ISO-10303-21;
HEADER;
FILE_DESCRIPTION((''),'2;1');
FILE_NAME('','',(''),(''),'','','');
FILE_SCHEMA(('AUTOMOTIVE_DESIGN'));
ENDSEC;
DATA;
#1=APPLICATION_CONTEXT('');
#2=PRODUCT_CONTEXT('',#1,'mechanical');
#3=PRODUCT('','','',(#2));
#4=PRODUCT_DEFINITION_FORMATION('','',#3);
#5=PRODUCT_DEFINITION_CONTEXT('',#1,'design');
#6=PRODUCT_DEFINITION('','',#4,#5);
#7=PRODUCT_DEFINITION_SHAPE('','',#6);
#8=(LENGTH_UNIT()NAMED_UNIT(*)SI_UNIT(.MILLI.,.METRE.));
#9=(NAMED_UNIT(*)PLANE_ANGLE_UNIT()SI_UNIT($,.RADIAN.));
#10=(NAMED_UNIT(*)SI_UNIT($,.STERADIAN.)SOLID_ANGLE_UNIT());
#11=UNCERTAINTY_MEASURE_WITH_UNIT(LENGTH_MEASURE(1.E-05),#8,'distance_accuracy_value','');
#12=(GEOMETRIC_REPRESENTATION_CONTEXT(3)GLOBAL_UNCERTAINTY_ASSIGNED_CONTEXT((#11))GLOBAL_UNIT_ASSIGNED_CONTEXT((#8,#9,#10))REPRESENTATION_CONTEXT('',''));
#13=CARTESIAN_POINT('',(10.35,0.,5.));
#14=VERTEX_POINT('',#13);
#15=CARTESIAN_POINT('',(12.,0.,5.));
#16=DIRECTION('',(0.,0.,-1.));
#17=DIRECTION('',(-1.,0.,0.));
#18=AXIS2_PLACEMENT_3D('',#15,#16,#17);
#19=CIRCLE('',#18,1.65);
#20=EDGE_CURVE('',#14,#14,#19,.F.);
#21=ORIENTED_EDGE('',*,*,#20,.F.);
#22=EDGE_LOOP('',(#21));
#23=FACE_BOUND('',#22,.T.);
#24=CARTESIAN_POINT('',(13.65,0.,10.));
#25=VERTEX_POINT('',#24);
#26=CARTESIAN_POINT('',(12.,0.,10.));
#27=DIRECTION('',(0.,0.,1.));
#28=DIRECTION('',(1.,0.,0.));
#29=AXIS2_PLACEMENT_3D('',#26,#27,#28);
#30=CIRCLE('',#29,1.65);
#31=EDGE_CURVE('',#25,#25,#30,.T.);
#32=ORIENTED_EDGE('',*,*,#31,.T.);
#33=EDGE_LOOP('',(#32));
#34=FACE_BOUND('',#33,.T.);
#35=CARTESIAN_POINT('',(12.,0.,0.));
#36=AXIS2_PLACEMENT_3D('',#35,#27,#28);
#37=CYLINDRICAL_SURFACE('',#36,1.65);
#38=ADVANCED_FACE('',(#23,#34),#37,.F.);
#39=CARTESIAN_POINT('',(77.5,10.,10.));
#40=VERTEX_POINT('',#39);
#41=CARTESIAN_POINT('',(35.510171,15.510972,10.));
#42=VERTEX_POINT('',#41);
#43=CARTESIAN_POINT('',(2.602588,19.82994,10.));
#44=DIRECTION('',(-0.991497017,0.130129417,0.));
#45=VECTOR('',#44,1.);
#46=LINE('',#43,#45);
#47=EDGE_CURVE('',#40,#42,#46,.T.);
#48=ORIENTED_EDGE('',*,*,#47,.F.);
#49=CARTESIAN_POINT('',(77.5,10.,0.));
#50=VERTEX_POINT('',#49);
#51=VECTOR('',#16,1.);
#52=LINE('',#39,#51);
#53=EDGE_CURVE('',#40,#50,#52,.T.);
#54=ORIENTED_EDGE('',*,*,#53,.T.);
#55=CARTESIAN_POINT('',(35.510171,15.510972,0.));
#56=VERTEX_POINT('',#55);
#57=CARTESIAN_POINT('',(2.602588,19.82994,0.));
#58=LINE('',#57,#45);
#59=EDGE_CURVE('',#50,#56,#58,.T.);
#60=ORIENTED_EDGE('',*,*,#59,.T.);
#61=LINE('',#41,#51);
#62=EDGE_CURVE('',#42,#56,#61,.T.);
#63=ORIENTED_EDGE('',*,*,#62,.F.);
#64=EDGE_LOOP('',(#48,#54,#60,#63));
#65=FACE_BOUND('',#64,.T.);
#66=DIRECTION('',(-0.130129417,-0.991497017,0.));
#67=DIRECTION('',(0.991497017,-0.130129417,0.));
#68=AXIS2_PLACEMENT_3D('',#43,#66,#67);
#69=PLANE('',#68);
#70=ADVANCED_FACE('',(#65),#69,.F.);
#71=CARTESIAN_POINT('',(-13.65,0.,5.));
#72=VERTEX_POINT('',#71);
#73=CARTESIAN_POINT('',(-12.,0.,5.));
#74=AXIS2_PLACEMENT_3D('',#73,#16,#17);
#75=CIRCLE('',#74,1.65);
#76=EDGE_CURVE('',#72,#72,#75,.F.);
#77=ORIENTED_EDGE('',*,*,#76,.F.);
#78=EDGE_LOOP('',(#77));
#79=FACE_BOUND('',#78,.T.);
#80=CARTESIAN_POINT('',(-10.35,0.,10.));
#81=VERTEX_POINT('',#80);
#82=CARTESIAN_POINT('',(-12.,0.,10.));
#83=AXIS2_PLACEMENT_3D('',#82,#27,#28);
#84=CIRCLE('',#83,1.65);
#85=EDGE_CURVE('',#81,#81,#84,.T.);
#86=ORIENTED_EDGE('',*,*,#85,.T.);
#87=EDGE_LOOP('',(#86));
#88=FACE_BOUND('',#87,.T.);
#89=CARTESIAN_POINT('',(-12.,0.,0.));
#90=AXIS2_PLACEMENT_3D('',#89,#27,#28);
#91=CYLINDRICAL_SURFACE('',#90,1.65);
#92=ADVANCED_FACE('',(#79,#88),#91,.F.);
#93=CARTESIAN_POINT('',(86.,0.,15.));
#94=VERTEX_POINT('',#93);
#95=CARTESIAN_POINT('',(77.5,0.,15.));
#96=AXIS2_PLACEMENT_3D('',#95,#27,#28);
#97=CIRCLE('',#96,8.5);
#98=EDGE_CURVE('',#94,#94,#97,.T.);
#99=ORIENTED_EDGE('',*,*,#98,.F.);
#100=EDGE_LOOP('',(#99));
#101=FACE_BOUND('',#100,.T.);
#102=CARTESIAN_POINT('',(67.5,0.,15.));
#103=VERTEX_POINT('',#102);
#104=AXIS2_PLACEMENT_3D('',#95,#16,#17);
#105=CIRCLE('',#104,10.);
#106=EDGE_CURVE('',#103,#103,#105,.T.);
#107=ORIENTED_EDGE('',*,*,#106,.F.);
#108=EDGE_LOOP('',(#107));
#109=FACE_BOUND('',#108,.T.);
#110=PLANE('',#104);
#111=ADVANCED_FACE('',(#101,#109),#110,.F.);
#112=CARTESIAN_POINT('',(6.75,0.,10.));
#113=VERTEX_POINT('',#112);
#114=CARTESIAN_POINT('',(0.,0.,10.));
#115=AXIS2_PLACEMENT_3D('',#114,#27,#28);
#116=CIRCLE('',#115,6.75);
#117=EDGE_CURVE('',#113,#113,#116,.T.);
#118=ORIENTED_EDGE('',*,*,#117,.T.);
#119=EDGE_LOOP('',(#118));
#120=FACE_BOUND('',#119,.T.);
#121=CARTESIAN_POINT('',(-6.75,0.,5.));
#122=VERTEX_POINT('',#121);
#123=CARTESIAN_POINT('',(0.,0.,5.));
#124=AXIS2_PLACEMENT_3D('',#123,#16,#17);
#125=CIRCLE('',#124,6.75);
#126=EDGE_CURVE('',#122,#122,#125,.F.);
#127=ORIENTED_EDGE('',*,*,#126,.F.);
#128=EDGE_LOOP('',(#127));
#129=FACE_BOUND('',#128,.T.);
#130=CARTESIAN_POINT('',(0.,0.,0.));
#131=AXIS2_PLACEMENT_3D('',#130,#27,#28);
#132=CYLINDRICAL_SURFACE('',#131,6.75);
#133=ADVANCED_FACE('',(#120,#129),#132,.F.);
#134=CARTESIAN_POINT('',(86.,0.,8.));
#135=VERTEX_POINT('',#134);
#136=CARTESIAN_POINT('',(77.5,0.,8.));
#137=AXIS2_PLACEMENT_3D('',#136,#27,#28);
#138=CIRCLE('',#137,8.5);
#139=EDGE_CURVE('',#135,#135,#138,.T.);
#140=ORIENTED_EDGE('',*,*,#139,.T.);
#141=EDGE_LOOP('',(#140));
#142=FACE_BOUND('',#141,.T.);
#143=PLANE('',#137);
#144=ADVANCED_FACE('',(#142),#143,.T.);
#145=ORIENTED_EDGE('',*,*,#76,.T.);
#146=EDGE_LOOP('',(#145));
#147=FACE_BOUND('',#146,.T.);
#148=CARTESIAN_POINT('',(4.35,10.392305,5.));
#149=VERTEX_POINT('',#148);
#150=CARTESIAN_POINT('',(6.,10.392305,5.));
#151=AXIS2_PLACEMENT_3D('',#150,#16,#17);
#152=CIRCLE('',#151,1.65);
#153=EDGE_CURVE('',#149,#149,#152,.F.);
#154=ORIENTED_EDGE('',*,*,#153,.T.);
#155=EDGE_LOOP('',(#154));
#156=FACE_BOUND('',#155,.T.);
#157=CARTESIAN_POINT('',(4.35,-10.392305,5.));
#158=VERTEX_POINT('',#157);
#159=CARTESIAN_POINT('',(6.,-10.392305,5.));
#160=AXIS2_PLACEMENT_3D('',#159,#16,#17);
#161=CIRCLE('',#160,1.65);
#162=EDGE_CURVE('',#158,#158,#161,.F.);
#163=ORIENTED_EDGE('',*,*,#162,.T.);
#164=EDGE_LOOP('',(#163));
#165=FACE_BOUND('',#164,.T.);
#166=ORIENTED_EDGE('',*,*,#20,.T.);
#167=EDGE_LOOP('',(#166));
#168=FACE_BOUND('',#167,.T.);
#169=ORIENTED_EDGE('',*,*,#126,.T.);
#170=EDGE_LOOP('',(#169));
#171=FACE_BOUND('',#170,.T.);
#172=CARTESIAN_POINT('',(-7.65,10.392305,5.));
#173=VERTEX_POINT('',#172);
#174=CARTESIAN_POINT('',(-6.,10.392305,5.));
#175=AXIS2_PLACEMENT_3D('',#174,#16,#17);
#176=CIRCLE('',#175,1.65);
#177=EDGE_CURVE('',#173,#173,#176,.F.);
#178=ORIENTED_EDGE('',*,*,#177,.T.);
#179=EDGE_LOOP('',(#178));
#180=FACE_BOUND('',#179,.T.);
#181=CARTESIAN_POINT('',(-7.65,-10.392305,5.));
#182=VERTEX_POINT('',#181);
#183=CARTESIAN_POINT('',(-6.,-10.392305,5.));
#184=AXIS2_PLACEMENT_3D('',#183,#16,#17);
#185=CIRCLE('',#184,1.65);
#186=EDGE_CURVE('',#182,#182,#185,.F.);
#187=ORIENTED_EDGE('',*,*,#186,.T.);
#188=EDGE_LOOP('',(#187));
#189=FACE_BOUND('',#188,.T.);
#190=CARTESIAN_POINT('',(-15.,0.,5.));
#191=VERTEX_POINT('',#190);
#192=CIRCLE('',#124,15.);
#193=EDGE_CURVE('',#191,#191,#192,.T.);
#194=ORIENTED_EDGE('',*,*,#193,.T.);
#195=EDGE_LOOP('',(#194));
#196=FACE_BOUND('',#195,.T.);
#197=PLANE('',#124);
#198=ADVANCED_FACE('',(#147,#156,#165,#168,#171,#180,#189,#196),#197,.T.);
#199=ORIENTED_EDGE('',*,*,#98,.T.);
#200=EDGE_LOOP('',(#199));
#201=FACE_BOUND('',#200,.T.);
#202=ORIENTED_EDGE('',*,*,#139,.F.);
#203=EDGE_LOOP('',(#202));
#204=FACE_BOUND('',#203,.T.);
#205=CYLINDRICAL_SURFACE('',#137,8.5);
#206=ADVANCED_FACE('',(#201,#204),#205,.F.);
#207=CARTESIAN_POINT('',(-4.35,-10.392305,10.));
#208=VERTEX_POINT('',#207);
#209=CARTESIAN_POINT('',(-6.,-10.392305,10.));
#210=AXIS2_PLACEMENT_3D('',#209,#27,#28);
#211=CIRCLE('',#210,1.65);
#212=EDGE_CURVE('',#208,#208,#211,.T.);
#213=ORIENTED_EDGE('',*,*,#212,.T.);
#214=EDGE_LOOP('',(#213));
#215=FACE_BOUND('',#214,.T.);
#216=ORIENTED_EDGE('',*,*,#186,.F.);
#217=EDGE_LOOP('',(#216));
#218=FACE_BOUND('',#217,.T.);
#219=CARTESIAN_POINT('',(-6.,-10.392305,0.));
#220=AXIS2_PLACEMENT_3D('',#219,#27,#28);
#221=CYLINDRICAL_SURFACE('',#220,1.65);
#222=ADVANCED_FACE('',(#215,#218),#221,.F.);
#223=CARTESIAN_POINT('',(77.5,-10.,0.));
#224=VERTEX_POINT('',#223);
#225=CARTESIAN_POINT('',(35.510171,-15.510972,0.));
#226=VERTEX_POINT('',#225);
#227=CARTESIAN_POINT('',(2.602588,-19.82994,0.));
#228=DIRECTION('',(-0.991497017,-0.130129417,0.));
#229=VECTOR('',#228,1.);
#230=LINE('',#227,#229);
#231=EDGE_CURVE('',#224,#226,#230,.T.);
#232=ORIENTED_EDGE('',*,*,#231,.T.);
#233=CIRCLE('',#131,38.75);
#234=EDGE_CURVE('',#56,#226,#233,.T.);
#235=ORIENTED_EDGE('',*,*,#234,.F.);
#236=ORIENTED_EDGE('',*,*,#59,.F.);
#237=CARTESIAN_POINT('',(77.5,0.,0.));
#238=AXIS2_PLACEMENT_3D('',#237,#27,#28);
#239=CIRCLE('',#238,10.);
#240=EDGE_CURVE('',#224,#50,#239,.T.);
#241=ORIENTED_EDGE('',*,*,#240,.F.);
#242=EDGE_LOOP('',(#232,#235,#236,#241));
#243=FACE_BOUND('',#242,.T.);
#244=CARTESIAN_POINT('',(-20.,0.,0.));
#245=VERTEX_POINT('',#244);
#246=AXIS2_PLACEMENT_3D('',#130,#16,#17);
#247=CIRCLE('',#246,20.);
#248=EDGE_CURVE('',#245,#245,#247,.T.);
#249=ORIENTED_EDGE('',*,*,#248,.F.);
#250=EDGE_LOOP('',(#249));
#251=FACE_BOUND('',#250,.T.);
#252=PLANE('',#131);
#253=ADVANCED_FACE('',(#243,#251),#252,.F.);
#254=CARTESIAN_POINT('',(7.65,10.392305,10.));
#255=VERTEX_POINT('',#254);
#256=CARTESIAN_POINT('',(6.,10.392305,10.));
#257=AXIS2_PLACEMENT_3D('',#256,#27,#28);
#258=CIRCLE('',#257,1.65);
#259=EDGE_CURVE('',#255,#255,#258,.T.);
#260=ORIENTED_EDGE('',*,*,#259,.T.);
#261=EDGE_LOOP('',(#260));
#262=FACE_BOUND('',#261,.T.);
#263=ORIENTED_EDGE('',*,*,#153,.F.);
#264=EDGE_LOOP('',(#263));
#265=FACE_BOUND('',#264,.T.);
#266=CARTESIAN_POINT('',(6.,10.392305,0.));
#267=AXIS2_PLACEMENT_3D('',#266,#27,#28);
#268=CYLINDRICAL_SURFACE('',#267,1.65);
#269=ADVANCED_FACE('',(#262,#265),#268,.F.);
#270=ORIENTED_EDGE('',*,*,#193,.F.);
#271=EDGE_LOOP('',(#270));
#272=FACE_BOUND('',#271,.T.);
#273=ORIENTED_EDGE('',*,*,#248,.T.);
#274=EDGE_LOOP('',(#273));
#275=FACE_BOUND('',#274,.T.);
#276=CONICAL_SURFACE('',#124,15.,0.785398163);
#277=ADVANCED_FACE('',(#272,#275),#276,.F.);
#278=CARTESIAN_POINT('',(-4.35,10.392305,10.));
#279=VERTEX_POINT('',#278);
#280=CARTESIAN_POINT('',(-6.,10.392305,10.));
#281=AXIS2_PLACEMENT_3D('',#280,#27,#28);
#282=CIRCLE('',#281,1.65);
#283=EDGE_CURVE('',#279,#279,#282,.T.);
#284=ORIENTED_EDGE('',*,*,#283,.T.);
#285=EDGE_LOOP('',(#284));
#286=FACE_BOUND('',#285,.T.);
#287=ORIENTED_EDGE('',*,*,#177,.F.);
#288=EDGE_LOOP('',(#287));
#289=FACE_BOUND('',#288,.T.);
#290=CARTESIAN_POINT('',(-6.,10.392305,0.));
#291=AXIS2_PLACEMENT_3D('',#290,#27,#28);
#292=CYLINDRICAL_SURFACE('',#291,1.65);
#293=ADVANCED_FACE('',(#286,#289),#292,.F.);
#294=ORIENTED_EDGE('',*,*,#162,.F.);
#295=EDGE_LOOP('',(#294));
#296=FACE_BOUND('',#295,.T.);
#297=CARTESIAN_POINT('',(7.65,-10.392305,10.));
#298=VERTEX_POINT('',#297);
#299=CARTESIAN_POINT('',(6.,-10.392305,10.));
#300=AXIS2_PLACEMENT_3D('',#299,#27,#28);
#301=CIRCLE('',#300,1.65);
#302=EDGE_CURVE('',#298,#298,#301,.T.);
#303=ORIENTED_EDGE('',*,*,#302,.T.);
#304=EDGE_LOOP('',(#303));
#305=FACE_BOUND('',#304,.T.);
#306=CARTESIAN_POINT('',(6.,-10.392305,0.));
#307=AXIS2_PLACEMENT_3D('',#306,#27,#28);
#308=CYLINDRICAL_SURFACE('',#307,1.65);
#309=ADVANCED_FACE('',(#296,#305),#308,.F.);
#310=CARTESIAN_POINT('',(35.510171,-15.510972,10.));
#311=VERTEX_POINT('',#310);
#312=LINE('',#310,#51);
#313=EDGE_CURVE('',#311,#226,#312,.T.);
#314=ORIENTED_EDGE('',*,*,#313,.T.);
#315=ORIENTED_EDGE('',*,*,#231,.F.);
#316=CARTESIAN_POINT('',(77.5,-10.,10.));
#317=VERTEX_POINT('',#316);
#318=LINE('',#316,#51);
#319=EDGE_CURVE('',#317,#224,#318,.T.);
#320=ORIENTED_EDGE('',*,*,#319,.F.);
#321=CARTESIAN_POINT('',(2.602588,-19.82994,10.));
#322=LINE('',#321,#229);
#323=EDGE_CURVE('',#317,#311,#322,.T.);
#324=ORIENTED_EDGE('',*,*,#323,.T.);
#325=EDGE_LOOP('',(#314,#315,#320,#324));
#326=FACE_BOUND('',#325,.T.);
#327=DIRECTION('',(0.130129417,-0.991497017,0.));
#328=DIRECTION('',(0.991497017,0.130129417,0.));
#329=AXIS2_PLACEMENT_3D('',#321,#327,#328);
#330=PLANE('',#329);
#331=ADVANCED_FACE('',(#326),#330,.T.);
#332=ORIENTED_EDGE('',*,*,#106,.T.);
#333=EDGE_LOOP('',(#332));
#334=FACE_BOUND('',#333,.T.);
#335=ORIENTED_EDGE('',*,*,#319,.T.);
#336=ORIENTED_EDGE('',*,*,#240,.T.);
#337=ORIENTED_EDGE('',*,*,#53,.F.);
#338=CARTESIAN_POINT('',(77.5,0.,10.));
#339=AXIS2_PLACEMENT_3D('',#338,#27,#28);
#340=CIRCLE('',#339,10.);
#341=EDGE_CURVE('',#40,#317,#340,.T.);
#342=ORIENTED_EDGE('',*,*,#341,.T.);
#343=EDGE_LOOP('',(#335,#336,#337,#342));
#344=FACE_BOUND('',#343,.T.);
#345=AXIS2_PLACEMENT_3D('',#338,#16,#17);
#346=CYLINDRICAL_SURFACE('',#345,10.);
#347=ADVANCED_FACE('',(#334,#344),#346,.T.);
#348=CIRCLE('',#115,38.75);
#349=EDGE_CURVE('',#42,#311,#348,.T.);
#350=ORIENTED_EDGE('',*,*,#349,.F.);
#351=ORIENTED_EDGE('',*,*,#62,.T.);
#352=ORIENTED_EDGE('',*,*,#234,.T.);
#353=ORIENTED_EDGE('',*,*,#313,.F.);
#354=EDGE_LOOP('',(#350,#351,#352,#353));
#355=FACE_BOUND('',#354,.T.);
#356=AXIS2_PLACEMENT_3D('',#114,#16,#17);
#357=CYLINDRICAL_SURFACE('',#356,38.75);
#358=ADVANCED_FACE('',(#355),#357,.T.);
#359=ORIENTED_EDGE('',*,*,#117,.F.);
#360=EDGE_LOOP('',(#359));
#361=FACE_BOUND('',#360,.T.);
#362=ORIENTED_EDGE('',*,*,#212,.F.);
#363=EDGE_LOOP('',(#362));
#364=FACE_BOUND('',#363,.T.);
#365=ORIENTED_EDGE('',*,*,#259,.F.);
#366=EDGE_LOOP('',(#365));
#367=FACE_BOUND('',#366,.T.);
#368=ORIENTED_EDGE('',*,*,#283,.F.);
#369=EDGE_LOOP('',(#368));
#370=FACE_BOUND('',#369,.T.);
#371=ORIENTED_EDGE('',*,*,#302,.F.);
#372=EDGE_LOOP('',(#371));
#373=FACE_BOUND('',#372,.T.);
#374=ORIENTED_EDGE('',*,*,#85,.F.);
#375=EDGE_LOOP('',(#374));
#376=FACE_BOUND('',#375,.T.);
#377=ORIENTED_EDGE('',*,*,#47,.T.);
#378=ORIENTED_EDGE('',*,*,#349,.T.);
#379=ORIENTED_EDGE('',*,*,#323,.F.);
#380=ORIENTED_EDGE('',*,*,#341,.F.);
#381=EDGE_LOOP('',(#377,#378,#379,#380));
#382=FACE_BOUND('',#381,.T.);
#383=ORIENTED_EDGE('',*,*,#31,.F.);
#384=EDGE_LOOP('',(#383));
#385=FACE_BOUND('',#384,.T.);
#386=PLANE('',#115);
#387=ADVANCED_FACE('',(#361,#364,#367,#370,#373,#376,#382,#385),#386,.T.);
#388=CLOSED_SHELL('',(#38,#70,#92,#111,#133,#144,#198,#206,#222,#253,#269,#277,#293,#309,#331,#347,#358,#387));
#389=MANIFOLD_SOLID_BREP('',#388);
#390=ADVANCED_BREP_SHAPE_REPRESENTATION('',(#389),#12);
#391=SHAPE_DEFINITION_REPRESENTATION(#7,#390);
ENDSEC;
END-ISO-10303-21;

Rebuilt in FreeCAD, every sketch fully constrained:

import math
import FreeCAD as App
import Part
import Sketcher
from FreeCAD import Vector
Q = App.Units.Quantity


def add_polygon(sketch, points):
    """Adds a closed chain of lines whose ends are joined by coincident constraints."""
    first, n = sketch.GeometryCount, len(points)
    for a, b in zip(points, points[1:] + points[:1]):
        sketch.addGeometry(Part.LineSegment(App.Vector(*a, 0), App.Vector(*b, 0)), False)
    for i in range(n):
        sketch.addConstraint(Sketcher.Constraint("Coincident", first + i, 2, first + (i + 1) % n, 1))

doc = App.newDocument("Part")
body = doc.addObject("PartDesign::Body", "Body")

# Sketch on XY plane
sketch1 = body.newObject("Sketcher::SketchObject", "Sketch")
sketch1.AttachmentSupport = (doc.getObject("XY_Plane"), [""])
sketch1.MapMode = "FlatFace"
sketch1.addGeometry([
    Part.ArcOfCircle(Part.Circle(Vector(0, 0, 0), Vector(0, 0, 1), 39), math.radians(24), math.radians(336)),
    Part.LineSegment(Vector(36, -16, 0), Vector(78, -10, 0)),
    Part.ArcOfCircle(Part.Circle(Vector(78, 0, 0), Vector(0, 0, 1), 10), math.radians(-90), math.radians(90)),
    Part.LineSegment(Vector(78, 10, 0), Vector(36, 16, 0)),
], False)
sketch1.addConstraint([
    Sketcher.Constraint("Coincident", 0, 2, 1, 1),
    Sketcher.Constraint("Coincident", 1, 2, 2, 1),
    Sketcher.Constraint("Coincident", 2, 2, 3, 1),
    Sketcher.Constraint("Coincident", 3, 2, 0, 1),
    Sketcher.Constraint("Coincident", 0, 3, -1, 1),
    Sketcher.Constraint("Symmetric", 1, 2, 2, 2, -1),
    Sketcher.Constraint("Vertical", 2, 3, 1, 2),
    Sketcher.Constraint("Vertical", 0, 2, 3, 2),
    Sketcher.Constraint("Radius", 2, Q("10 mm")),
    Sketcher.Constraint("Radius", 0, Q("38.75 mm")),
    Sketcher.Constraint("DistanceX", -1, 1, 2, 3, Q("77.5 mm")),
    Sketcher.Constraint("Distance", 1, Q("42.34993 mm")),
])
pad1 = body.newObject("PartDesign::Pad", "Pad")
pad1.Profile = sketch1
pad1.Length = 10

# Sketch on XY plane
sketch2 = body.newObject("Sketcher::SketchObject", "Sketch001")
sketch2.AttachmentSupport = (doc.getObject("XY_Plane"), [""])
sketch2.MapMode = "FlatFace"
sketch2.AttachmentOffset = App.Placement(Vector(0, 0, 10), App.Rotation())
sketch2.addGeometry([
    Part.Circle(Vector(0, 0, 0), Vector(0, 0, 1), 6.8),  # 0
    Part.Circle(Vector(12, 0, 0), Vector(0, 0, 1), 1.6),  # 1
    Part.Circle(Vector(6, -10.4, 0), Vector(0, 0, 1), 1.6),  # 2
    Part.Circle(Vector(-6, -10.4, 0), Vector(0, 0, 1), 1.6),  # 3
    Part.Circle(Vector(-12, 0, 0), Vector(0, 0, 1), 1.6),  # 4
    Part.Circle(Vector(-6, 10.4, 0), Vector(0, 0, 1), 1.6),  # 5
    Part.Circle(Vector(6, 10.4, 0), Vector(0, 0, 1), 1.6),  # 6
], False)
sketch2.addConstraint([
    Sketcher.Constraint("Coincident", 0, 3, -1, 1),
    Sketcher.Constraint("Equal", 1, 2),
    Sketcher.Constraint("Equal", 2, 3),
    Sketcher.Constraint("Equal", 3, 4),
    Sketcher.Constraint("Equal", 4, 5),
    Sketcher.Constraint("Equal", 5, 6),
    Sketcher.Constraint("Symmetric", 1, 3, 4, 3, -1, 1),
    Sketcher.Constraint("Symmetric", 2, 3, 5, 3, -1, 1),
    Sketcher.Constraint("Symmetric", 3, 3, 6, 3, -1, 1),
    Sketcher.Constraint("Symmetric", 2, 3, 3, 3, -2),
    Sketcher.Constraint("PointOnObject", 1, 3, -1),
    Sketcher.Constraint("Diameter", 0, Q("13.5 mm")),
    Sketcher.Constraint("Diameter", 1, Q("3.3 mm")),
    Sketcher.Constraint("DistanceX", -1, 1, 1, 3, Q("12 mm")),
    Sketcher.Constraint("DistanceX", -1, 1, 2, 3, Q("6 mm")),
    Sketcher.Constraint("DistanceY", 3, 3, 5, 3, Q("20.78461 mm")),
])
pocket1 = body.newObject("PartDesign::Pocket", "Pocket")
pocket1.Profile = sketch2
pocket1.Type = "ThroughAll"

# Sketch on XZ plane
sketch3 = body.newObject("Sketcher::SketchObject", "Sketch002")
sketch3.AttachmentSupport = (doc.getObject("XZ_Plane"), [""])
sketch3.MapMode = "FlatFace"
add_polygon(sketch3, [(0, 0), (0, 5), (15, 5), (20, 0)])  # lines 0-3
sketch3.addConstraint([
    Sketcher.Constraint("Vertical", 0),
    Sketcher.Constraint("Horizontal", 1),
    Sketcher.Constraint("Horizontal", 3),
    Sketcher.Constraint("Coincident", 3, 2, -1, 1),
    Sketcher.Constraint("DistanceX", 1, 1, 1, 2, Q("15 mm")),
    Sketcher.Constraint("DistanceX", 3, 2, 3, 1, Q("20 mm")),
    Sketcher.Constraint("DistanceY", 0, 1, 0, 2, Q("5 mm")),
])
groove = body.newObject("PartDesign::Groove", "Groove")
groove.Profile = sketch3
groove.ReferenceAxis = (sketch3, ["V_Axis"])
groove.Angle = 360

# Sketch on XY plane
sketch4 = body.newObject("Sketcher::SketchObject", "Sketch003")
sketch4.AttachmentSupport = (doc.getObject("XY_Plane"), [""])
sketch4.MapMode = "FlatFace"
sketch4.addGeometry(Part.Circle(Vector(78, 0, 0), Vector(0, 0, 1), 10), False)
sketch4.addConstraint([
    Sketcher.Constraint("PointOnObject", 0, 3, -1),
    Sketcher.Constraint("Diameter", 0, Q("20 mm")),
    Sketcher.Constraint("DistanceX", -1, 1, 0, 3, Q("77.5 mm")),
])
pad2 = body.newObject("PartDesign::Pad", "Pad001")
pad2.Profile = sketch4
pad2.Length = 15

# Sketch on XY plane
sketch5 = body.newObject("Sketcher::SketchObject", "Sketch004")
sketch5.AttachmentSupport = (doc.getObject("XY_Plane"), [""])
sketch5.MapMode = "FlatFace"
sketch5.AttachmentOffset = App.Placement(Vector(0, 0, 15), App.Rotation())
sketch5.addGeometry(Part.Circle(Vector(78, 0, 0), Vector(0, 0, 1), 8), False)
sketch5.addConstraint([
    Sketcher.Constraint("PointOnObject", 0, 3, -1),
    Sketcher.Constraint("Diameter", 0, Q("17 mm")),
    Sketcher.Constraint("DistanceX", -1, 1, 0, 3, Q("77.5 mm")),
])
pocket2 = body.newObject("PartDesign::Pocket", "Pocket001")
pocket2.Profile = sketch5
pocket2.Length = 7

doc.recompute()
